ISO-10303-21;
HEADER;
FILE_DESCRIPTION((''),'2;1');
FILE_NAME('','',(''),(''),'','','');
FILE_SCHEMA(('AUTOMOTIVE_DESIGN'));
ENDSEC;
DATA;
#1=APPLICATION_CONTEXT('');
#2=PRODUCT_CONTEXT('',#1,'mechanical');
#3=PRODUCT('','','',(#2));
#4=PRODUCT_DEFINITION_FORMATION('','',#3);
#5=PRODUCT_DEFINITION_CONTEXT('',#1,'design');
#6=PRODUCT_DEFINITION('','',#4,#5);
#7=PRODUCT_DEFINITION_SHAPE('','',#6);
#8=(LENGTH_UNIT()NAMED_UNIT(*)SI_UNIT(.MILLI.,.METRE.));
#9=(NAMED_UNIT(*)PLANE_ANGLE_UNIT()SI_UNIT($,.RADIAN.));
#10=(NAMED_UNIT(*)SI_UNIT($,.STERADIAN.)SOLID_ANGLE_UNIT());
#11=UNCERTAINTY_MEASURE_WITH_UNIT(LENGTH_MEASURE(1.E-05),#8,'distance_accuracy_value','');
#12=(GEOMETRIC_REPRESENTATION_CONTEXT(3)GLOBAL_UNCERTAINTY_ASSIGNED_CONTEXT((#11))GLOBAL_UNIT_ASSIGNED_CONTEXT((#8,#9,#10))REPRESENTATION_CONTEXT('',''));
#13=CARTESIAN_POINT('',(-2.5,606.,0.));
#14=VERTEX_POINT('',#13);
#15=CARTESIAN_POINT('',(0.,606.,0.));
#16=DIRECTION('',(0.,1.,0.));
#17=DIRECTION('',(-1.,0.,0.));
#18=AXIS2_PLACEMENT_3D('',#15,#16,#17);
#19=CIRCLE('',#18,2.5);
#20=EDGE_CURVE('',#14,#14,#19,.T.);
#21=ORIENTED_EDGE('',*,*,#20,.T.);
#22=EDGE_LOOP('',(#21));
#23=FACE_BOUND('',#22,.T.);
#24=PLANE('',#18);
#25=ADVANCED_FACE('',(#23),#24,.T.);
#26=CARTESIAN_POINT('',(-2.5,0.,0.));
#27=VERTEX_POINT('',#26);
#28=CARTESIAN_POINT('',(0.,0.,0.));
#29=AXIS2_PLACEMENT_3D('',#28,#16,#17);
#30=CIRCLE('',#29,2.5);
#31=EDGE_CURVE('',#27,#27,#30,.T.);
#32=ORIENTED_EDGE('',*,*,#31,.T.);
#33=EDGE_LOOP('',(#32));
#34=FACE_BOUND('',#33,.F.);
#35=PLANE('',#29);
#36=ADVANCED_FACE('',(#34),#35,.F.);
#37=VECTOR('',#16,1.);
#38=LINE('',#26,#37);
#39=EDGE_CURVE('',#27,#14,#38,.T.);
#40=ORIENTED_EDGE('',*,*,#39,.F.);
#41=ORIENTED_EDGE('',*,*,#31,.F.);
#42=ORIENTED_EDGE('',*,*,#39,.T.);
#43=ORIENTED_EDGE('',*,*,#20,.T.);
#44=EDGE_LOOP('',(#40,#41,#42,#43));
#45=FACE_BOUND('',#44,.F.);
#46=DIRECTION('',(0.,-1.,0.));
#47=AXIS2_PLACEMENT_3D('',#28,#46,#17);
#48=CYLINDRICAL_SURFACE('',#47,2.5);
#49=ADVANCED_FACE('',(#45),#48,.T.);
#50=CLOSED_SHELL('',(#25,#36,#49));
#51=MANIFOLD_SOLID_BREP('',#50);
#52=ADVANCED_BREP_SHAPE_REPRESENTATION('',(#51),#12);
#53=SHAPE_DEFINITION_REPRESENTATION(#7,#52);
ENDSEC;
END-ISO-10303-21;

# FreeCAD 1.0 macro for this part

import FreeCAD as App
import Part
import Sketcher

V = App.Vector

doc = App.newDocument("Part")
body = doc.addObject("PartDesign::Body", "Body")

# Sketch on XZ plane
sketch1 = body.newObject("Sketcher::SketchObject", "Sketch")
sketch1.AttachmentSupport = (doc.getObject("XZ_Plane"), [""])
sketch1.MapMode = "FlatFace"
sketch1.addGeometry(Part.Circle(V(0, 0, 0), V(0, 0, 1), 2.5), False)
sketch1.addConstraint(Sketcher.Constraint("Coincident", 0, 3, -1, 1))
sketch1.addConstraint(Sketcher.Constraint("Diameter", 0, 5.0))
pad1 = body.newObject("PartDesign::Pad", "Pad")
pad1.Profile = sketch1
pad1.Length = 606
pad1.Reversed = True

doc.recompute()
